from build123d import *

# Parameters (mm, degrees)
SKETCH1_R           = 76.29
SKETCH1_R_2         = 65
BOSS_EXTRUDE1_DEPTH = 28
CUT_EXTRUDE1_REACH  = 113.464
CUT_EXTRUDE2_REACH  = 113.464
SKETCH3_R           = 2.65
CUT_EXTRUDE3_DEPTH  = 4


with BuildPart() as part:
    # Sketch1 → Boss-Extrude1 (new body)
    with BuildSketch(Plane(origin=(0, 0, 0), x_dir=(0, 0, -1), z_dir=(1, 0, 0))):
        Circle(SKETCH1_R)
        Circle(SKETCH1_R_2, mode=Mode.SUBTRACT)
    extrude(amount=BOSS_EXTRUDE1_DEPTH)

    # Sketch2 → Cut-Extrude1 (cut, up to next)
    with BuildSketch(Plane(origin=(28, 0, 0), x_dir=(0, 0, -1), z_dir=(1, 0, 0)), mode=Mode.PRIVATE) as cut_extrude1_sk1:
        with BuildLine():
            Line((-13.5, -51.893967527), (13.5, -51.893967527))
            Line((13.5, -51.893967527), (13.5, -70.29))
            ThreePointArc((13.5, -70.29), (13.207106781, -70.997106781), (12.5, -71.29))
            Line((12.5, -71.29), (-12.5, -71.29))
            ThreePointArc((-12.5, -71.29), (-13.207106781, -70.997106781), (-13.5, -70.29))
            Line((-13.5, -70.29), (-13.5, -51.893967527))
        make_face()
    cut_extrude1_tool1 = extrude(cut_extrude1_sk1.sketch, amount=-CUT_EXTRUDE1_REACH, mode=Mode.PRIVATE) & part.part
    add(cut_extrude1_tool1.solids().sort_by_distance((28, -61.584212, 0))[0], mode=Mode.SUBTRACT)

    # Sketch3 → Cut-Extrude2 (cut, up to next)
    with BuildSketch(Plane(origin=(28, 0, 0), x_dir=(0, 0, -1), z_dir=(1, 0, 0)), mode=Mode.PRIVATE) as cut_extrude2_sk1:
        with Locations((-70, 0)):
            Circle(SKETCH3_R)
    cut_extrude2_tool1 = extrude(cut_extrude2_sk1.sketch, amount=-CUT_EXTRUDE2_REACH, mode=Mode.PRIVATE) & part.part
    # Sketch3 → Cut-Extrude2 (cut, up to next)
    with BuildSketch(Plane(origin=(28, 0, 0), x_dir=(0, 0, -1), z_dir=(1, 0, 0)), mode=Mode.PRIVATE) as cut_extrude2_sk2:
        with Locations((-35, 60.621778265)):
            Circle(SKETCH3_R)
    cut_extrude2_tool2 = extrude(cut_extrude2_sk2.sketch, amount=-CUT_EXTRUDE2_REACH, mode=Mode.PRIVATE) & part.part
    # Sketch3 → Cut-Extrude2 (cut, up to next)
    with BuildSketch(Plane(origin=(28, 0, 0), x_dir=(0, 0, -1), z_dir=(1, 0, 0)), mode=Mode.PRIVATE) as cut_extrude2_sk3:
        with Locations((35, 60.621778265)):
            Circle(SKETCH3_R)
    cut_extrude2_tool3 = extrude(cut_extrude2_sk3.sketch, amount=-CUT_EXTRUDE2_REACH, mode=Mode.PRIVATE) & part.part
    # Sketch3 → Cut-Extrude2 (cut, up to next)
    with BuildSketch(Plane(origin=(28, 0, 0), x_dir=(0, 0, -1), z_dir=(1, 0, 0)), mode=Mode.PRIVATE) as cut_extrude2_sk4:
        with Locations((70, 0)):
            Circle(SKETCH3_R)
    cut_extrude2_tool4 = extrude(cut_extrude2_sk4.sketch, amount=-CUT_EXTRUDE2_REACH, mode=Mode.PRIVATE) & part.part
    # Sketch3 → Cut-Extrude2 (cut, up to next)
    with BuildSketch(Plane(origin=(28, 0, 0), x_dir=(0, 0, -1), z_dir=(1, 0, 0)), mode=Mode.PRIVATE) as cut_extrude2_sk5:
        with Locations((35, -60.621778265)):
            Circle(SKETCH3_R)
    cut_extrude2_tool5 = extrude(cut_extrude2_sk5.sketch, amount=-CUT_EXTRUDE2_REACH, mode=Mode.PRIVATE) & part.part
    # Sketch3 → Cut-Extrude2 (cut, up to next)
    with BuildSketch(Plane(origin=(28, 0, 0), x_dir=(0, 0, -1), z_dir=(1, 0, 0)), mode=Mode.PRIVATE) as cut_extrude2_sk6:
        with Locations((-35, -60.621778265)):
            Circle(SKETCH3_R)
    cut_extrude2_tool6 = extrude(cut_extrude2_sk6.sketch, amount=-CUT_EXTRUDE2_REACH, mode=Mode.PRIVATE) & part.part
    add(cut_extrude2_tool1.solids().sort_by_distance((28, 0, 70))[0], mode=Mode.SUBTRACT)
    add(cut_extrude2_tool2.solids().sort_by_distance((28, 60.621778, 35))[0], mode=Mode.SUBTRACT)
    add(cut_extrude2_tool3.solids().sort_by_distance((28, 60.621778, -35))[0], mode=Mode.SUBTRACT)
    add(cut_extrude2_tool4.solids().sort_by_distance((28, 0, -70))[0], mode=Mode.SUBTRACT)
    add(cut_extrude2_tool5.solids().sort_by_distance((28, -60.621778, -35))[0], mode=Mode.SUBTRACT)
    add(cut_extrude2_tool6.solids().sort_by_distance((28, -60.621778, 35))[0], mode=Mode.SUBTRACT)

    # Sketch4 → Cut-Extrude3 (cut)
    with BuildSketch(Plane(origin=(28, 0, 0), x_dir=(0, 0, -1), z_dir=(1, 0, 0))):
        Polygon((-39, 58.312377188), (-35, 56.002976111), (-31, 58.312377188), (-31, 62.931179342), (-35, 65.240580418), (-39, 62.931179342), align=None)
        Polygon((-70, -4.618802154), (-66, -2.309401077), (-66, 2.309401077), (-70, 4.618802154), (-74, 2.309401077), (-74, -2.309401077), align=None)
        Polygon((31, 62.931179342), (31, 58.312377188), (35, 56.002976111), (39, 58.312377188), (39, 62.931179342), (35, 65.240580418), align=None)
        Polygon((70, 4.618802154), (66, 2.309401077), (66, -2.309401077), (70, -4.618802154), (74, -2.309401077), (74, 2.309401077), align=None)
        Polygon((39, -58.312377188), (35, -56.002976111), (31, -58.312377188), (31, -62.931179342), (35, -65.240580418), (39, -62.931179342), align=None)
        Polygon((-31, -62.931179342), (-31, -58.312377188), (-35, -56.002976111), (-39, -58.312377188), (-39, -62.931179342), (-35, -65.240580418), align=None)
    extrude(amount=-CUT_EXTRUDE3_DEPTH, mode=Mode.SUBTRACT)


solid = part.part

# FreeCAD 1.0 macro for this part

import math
import FreeCAD as App
import Part
import Sketcher
Q = App.Units.Quantity


def add_polygon(sketch, points):
    """Adds a closed chain of lines whose ends are joined by coincident constraints."""
    first, n = sketch.GeometryCount, len(points)
    for a, b in zip(points, points[1:] + points[:1]):
        sketch.addGeometry(Part.LineSegment(App.Vector(*a, 0), App.Vector(*b, 0)), False)
    for i in range(n):
        sketch.addConstraint(Sketcher.Constraint("Coincident", first + i, 2, first + (i + 1) % n, 1))

doc = App.newDocument("Part")
body = doc.addObject("PartDesign::Body", "Body")

sketch1 = doc.addObject("Sketcher::SketchObject", "Sketch")
body.addObject(sketch1)
sketch1.AttachmentSupport = (doc.YZ_Plane, [""])
sketch1.MapMode = "FlatFace"
sketch1.addGeometry(Part.Circle(App.Vector(0, 0, 0), App.Vector(0, 0, 1), 76.29), False)
sketch1.addGeometry(Part.Circle(App.Vector(0, 0, 0), App.Vector(0, 0, 1), 65), False)
sketch1.addConstraint(Sketcher.Constraint("Coincident", 0, 3, -1, 1))
sketch1.addConstraint(Sketcher.Constraint("Coincident", 1, 3, -1, 1))
sketch1.addConstraint(Sketcher.Constraint("Diameter", 1, Q("130 mm")))
sketch1.addConstraint(Sketcher.Constraint("Diameter", 0, Q("152.58 mm")))
pad1 = doc.addObject("PartDesign::Pad", "Pad")
body.addObject(pad1)
pad1.Profile = sketch1
pad1.Length = 28

sketch2 = doc.addObject("Sketcher::SketchObject", "Sketch001")
body.addObject(sketch2)
sketch2.AttachmentSupport = (doc.YZ_Plane, [""])
sketch2.MapMode = "FlatFace"
sketch2.AttachmentOffset = App.Placement(App.Vector(0, 0, 28), App.Rotation())
sketch2.addGeometry(Part.LineSegment(App.Vector(-51.893968, -13.5, 0), App.Vector(-51.893968, 13.5, 0)), False)
sketch2.addGeometry(Part.LineSegment(App.Vector(-51.893968, 13.5, 0), App.Vector(-70.29, 13.5, 0)), False)
sketch2.addGeometry(Part.ArcOfCircle(Part.Circle(App.Vector(-70.29, 12.5, 0), App.Vector(0, 0, 1), 1), math.radians(90), math.radians(180)), False)
sketch2.addGeometry(Part.LineSegment(App.Vector(-71.29, 12.5, 0), App.Vector(-71.29, -12.5, 0)), False)
sketch2.addGeometry(Part.ArcOfCircle(Part.Circle(App.Vector(-70.29, -12.5, 0), App.Vector(0, 0, 1), 1), math.radians(-180), math.radians(-90)), False)
sketch2.addGeometry(Part.LineSegment(App.Vector(-70.29, -13.5, 0), App.Vector(-51.893968, -13.5, 0)), False)
sketch2.addConstraint(Sketcher.Constraint("Coincident", 0, 2, 1, 1))
sketch2.addConstraint(Sketcher.Constraint("Tangent", 1, 2, 2, 1))
sketch2.addConstraint(Sketcher.Constraint("Tangent", 2, 2, 3, 1))
sketch2.addConstraint(Sketcher.Constraint("Tangent", 3, 2, 4, 1))
sketch2.addConstraint(Sketcher.Constraint("Tangent", 4, 2, 5, 1))
sketch2.addConstraint(Sketcher.Constraint("Coincident", 5, 2, 0, 1))
sketch2.addConstraint(Sketcher.Constraint("Vertical", 0))
sketch2.addConstraint(Sketcher.Constraint("Horizontal", 1))
sketch2.addConstraint(Sketcher.Constraint("Vertical", 3))
sketch2.addConstraint(Sketcher.Constraint("Horizontal", 5))
sketch2.addConstraint(Sketcher.Constraint("Equal", 2, 4))
sketch2.addConstraint(Sketcher.Constraint("Radius", 2, Q("1 mm")))
sketch2.addConstraint(Sketcher.Constraint("DistanceY", 0, 1, 0, 2, Q("27 mm")))
sketch2.addConstraint(Sketcher.Constraint("DistanceY", -1, 1, 2, 3, Q("12.5 mm")))
sketch2.addConstraint(Sketcher.Constraint("DistanceX", 2, 3, -1, 1, Q("70.29 mm")))
sketch2.addConstraint(Sketcher.Constraint("DistanceX", 1, 2, 1, 1, Q("18.396032 mm")))
pocket1 = doc.addObject("PartDesign::Pocket", "Pocket")
body.addObject(pocket1)
pocket1.Profile = sketch2
pocket1.Length = 28

sketch3 = doc.addObject("Sketcher::SketchObject", "Sketch002")
body.addObject(sketch3)
sketch3.AttachmentSupport = (doc.YZ_Plane, [""])
sketch3.MapMode = "FlatFace"
sketch3.AttachmentOffset = App.Placement(App.Vector(0, 0, 28), App.Rotation())
sketch3.addGeometry(Part.Circle(App.Vector(0, 70, 0), App.Vector(0, 0, 1), 2.65), False)
sketch3.addConstraint(Sketcher.Constraint("PointOnObject", 0, 3, -2))
sketch3.addConstraint(Sketcher.Constraint("Diameter", 0, Q("5.3 mm")))
sketch3.addConstraint(Sketcher.Constraint("DistanceY", -1, 1, 0, 3, Q("70 mm")))
pocket2 = doc.addObject("PartDesign::Pocket", "Pocket001")
body.addObject(pocket2)
pocket2.Profile = sketch3
pocket2.Type = "UpToFirst"

sketch4 = doc.addObject("Sketcher::SketchObject", "Sketch003")
body.addObject(sketch4)
sketch4.AttachmentSupport = (doc.YZ_Plane, [""])
sketch4.MapMode = "FlatFace"
sketch4.AttachmentOffset = App.Placement(App.Vector(0, 0, 28), App.Rotation())
sketch4.addGeometry(Part.Circle(App.Vector(60.621778, 35, 0), App.Vector(0, 0, 1), 2.65), False)
sketch4.addConstraint(Sketcher.Constraint("Diameter", 0, Q("5.3 mm")))
sketch4.addConstraint(Sketcher.Constraint("DistanceY", -1, 1, 0, 3, Q("35 mm")))
sketch4.addConstraint(Sketcher.Constraint("DistanceX", -1, 1, 0, 3, Q("60.621778 mm")))
pocket3 = doc.addObject("PartDesign::Pocket", "Pocket002")
body.addObject(pocket3)
pocket3.Profile = sketch4
pocket3.Type = "UpToFirst"

sketch5 = doc.addObject("Sketcher::SketchObject", "Sketch004")
body.addObject(sketch5)
sketch5.AttachmentSupport = (doc.YZ_Plane, [""])
sketch5.MapMode = "FlatFace"
sketch5.AttachmentOffset = App.Placement(App.Vector(0, 0, 28), App.Rotation())
sketch5.addGeometry(Part.Circle(App.Vector(60.621778, -35, 0), App.Vector(0, 0, 1), 2.65), False)
sketch5.addConstraint(Sketcher.Constraint("Diameter", 0, Q("5.3 mm")))
sketch5.addConstraint(Sketcher.Constraint("DistanceY", 0, 3, -1, 1, Q("35 mm")))
sketch5.addConstraint(Sketcher.Constraint("DistanceX", -1, 1, 0, 3, Q("60.621778 mm")))
pocket4 = doc.addObject("PartDesign::Pocket", "Pocket003")
body.addObject(pocket4)
pocket4.Profile = sketch5
pocket4.Type = "UpToFirst"

sketch6 = doc.addObject("Sketcher::SketchObject", "Sketch005")
body.addObject(sketch6)
sketch6.AttachmentSupport = (doc.YZ_Plane, [""])
sketch6.MapMode = "FlatFace"
sketch6.AttachmentOffset = App.Placement(App.Vector(0, 0, 28), App.Rotation())
sketch6.addGeometry(Part.Circle(App.Vector(0, -70, 0), App.Vector(0, 0, 1), 2.65), False)
sketch6.addConstraint(Sketcher.Constraint("PointOnObject", 0, 3, -2))
sketch6.addConstraint(Sketcher.Constraint("Diameter", 0, Q("5.3 mm")))
sketch6.addConstraint(Sketcher.Constraint("DistanceY", 0, 3, -1, 1, Q("70 mm")))
pocket5 = doc.addObject("PartDesign::Pocket", "Pocket004")
body.addObject(pocket5)
pocket5.Profile = sketch6
pocket5.Type = "UpToFirst"

sketch7 = doc.addObject("Sketcher::SketchObject", "Sketch006")
body.addObject(sketch7)
sketch7.AttachmentSupport = (doc.YZ_Plane, [""])
sketch7.MapMode = "FlatFace"
sketch7.AttachmentOffset = App.Placement(App.Vector(0, 0, 28), App.Rotation())
sketch7.addGeometry(Part.Circle(App.Vector(-60.621778, -35, 0), App.Vector(0, 0, 1), 2.65), False)
sketch7.addConstraint(Sketcher.Constraint("Diameter", 0, Q("5.3 mm")))
sketch7.addConstraint(Sketcher.Constraint("DistanceY", 0, 3, -1, 1, Q("35 mm")))
sketch7.addConstraint(Sketcher.Constraint("DistanceX", 0, 3, -1, 1, Q("60.621778 mm")))
pocket6 = doc.addObject("PartDesign::Pocket", "Pocket005")
body.addObject(pocket6)
pocket6.Profile = sketch7
pocket6.Type = "UpToFirst"

sketch8 = doc.addObject("Sketcher::SketchObject", "Sketch007")
body.addObject(sketch8)
sketch8.AttachmentSupport = (doc.YZ_Plane, [""])
sketch8.MapMode = "FlatFace"
sketch8.AttachmentOffset = App.Placement(App.Vector(0, 0, 28), App.Rotation())
sketch8.addGeometry(Part.Circle(App.Vector(-60.621778, 35, 0), App.Vector(0, 0, 1), 2.65), False)
sketch8.addConstraint(Sketcher.Constraint("Diameter", 0, Q("5.3 mm")))
sketch8.addConstraint(Sketcher.Constraint("DistanceY", -1, 1, 0, 3, Q("35 mm")))
sketch8.addConstraint(Sketcher.Constraint("DistanceX", 0, 3, -1, 1, Q("60.621778 mm")))
pocket7 = doc.addObject("PartDesign::Pocket", "Pocket006")
body.addObject(pocket7)
pocket7.Profile = sketch8
pocket7.Type = "UpToFirst"

sketch9 = doc.addObject("Sketcher::SketchObject", "Sketch008")
body.addObject(sketch9)
sketch9.AttachmentSupport = (doc.YZ_Plane, [""])
sketch9.MapMode = "FlatFace"
sketch9.AttachmentOffset = App.Placement(App.Vector(0, 0, 28), App.Rotation())
add_polygon(sketch9, [(58.312377, 39), (56.002976, 35), (58.312377, 31), (62.931179, 31), (65.24058, 35), (62.931179, 39)])
add_polygon(sketch9, [(-4.618802, 70), (-2.309401, 66), (2.309401, 66), (4.618802, 70), (2.309401, 74), (-2.309401, 74)])
add_polygon(sketch9, [(62.931179, -31), (58.312377, -31), (56.002976, -35), (58.312377, -39), (62.931179, -39), (65.24058, -35)])
add_polygon(sketch9, [(4.618802, -70), (2.309401, -66), (-2.309401, -66), (-4.618802, -70), (-2.309401, -74), (2.309401, -74)])
add_polygon(sketch9, [(-58.312377, -39), (-56.002976, -35), (-58.312377, -31), (-62.931179, -31), (-65.24058, -35), (-62.931179, -39)])
add_polygon(sketch9, [(-62.931179, 31), (-58.312377, 31), (-56.002976, 35), (-58.312377, 39), (-62.931179, 39), (-65.24058, 35)])
sketch9.addConstraint(Sketcher.Constraint("Horizontal", 2))
sketch9.addConstraint(Sketcher.Constraint("Horizontal", 5))
sketch9.addConstraint(Sketcher.Constraint("Horizontal", 7))
sketch9.addConstraint(Sketcher.Constraint("Horizontal", 10))
sketch9.addConstraint(Sketcher.Constraint("Horizontal", 12))
sketch9.addConstraint(Sketcher.Constraint("Horizontal", 15))
sketch9.addConstraint(Sketcher.Constraint("Horizontal", 19))
sketch9.addConstraint(Sketcher.Constraint("Horizontal", 22))
sketch9.addConstraint(Sketcher.Constraint("Horizontal", 26))
sketch9.addConstraint(Sketcher.Constraint("Horizontal", 29))
sketch9.addConstraint(Sketcher.Constraint("Horizontal", 30))
sketch9.addConstraint(Sketcher.Constraint("Horizontal", 33))
sketch9.addConstraint(Sketcher.Constraint("Symmetric", 6, 2, 18, 2, -1, 1))
sketch9.addConstraint(Sketcher.Constraint("Symmetric", 8, 2, 20, 2, -1, 1))
sketch9.addConstraint(Sketcher.Constraint("Symmetric", 9, 2, 21, 2, -1, 1))
sketch9.addConstraint(Sketcher.Constraint("Symmetric", 11, 2, 23, 2, -1, 1))
sketch9.addConstraint(Sketcher.Constraint("Symmetric", 0, 2, 24, 2, -1, 1))
sketch9.addConstraint(Sketcher.Constraint("Symmetric", 1, 2, 25, 2, -1, 1))
sketch9.addConstraint(Sketcher.Constraint("Symmetric", 3, 2, 27, 2, -1, 1))
sketch9.addConstraint(Sketcher.Constraint("Symmetric", 4, 2, 28, 2, -1, 1))
sketch9.addConstraint(Sketcher.Constraint("Symmetric", 12, 2, 30, 2, -1, 1))
sketch9.addConstraint(Sketcher.Constraint("Symmetric", 13, 2, 31, 2, -1, 1))
sketch9.addConstraint(Sketcher.Constraint("Symmetric", 14, 2, 32, 2, -1, 1))
sketch9.addConstraint(Sketcher.Constraint("Symmetric", 16, 2, 34, 2, -1, 1))
sketch9.addConstraint(Sketcher.Constraint("Symmetric", 8, 2, 11, 2, -2))
sketch9.addConstraint(Sketcher.Constraint("Symmetric", 13, 2, 24, 2, -2))
sketch9.addConstraint(Sketcher.Constraint("Symmetric", 12, 2, 25, 2, -2))
sketch9.addConstraint(Sketcher.Constraint("Symmetric", 16, 2, 27, 2, -2))
sketch9.addConstraint(Sketcher.Constraint("Symmetric", 15, 2, 28, 2, -2))
sketch9.addConstraint(Sketcher.Constraint("Parallel", 0, 3))
sketch9.addConstraint(Sketcher.Constraint("Parallel", 1, 4))
sketch9.addConstraint(Sketcher.Constraint("Parallel", 4, 6))
sketch9.addConstraint(Sketcher.Constraint("Parallel", 3, 8))
sketch9.addConstraint(Sketcher.Constraint("Parallel", 6, 9))
sketch9.addConstraint(Sketcher.Constraint("Parallel", 8, 11))
sketch9.addConstraint(Sketcher.Constraint("Parallel", 11, 13))
sketch9.addConstraint(Sketcher.Constraint("Parallel", 9, 14))
sketch9.addConstraint(Sketcher.Constraint("Parallel", 14, 17))
sketch9.addConstraint(Sketcher.Constraint("Parallel", 16, 20))
sketch9.addConstraint(Sketcher.Constraint("Parallel", 20, 23))
sketch9.addConstraint(Sketcher.Constraint("Parallel", 23, 24))
sketch9.addConstraint(Sketcher.Constraint("Parallel", 24, 27))
sketch9.addConstraint(Sketcher.Constraint("Parallel", 31, 34))
sketch9.addConstraint(Sketcher.Constraint("Parallel", 32, 35))
sketch9.addConstraint(Sketcher.Constraint("Horizontal", 0, 2, 3, 2))
sketch9.addConstraint(Sketcher.Constraint("Vertical", 2, 2, 4, 2))
sketch9.addConstraint(Sketcher.Constraint("Vertical", 7, 2, 9, 2))
sketch9.addConstraint(Sketcher.Constraint("Equal", 5, 7))
sketch9.addConstraint(Sketcher.Constraint("Equal", 4, 6))
sketch9.addConstraint(Sketcher.Constraint("Angle", 0, Q("-120 deg")))
sketch9.addConstraint(Sketcher.Constraint("DistanceY", -1, 1, 0, 2, Q("35 mm")))
sketch9.addConstraint(Sketcher.Constraint("DistanceY", -1, 1, 1, 2, Q("31 mm")))
sketch9.addConstraint(Sketcher.Constraint("DistanceY", -1, 1, 6, 2, Q("66 mm")))
sketch9.addConstraint(Sketcher.Constraint("DistanceX", 6, 2, -1, 1, Q("2.309401 mm")))
sketch9.addConstraint(Sketcher.Constraint("DistanceX", -1, 1, 2, 2, Q("62.931179 mm")))
pocket8 = doc.addObject("PartDesign::Pocket", "Pocket007")
body.addObject(pocket8)
pocket8.Profile = sketch9
pocket8.Length = 4

doc.recompute()
